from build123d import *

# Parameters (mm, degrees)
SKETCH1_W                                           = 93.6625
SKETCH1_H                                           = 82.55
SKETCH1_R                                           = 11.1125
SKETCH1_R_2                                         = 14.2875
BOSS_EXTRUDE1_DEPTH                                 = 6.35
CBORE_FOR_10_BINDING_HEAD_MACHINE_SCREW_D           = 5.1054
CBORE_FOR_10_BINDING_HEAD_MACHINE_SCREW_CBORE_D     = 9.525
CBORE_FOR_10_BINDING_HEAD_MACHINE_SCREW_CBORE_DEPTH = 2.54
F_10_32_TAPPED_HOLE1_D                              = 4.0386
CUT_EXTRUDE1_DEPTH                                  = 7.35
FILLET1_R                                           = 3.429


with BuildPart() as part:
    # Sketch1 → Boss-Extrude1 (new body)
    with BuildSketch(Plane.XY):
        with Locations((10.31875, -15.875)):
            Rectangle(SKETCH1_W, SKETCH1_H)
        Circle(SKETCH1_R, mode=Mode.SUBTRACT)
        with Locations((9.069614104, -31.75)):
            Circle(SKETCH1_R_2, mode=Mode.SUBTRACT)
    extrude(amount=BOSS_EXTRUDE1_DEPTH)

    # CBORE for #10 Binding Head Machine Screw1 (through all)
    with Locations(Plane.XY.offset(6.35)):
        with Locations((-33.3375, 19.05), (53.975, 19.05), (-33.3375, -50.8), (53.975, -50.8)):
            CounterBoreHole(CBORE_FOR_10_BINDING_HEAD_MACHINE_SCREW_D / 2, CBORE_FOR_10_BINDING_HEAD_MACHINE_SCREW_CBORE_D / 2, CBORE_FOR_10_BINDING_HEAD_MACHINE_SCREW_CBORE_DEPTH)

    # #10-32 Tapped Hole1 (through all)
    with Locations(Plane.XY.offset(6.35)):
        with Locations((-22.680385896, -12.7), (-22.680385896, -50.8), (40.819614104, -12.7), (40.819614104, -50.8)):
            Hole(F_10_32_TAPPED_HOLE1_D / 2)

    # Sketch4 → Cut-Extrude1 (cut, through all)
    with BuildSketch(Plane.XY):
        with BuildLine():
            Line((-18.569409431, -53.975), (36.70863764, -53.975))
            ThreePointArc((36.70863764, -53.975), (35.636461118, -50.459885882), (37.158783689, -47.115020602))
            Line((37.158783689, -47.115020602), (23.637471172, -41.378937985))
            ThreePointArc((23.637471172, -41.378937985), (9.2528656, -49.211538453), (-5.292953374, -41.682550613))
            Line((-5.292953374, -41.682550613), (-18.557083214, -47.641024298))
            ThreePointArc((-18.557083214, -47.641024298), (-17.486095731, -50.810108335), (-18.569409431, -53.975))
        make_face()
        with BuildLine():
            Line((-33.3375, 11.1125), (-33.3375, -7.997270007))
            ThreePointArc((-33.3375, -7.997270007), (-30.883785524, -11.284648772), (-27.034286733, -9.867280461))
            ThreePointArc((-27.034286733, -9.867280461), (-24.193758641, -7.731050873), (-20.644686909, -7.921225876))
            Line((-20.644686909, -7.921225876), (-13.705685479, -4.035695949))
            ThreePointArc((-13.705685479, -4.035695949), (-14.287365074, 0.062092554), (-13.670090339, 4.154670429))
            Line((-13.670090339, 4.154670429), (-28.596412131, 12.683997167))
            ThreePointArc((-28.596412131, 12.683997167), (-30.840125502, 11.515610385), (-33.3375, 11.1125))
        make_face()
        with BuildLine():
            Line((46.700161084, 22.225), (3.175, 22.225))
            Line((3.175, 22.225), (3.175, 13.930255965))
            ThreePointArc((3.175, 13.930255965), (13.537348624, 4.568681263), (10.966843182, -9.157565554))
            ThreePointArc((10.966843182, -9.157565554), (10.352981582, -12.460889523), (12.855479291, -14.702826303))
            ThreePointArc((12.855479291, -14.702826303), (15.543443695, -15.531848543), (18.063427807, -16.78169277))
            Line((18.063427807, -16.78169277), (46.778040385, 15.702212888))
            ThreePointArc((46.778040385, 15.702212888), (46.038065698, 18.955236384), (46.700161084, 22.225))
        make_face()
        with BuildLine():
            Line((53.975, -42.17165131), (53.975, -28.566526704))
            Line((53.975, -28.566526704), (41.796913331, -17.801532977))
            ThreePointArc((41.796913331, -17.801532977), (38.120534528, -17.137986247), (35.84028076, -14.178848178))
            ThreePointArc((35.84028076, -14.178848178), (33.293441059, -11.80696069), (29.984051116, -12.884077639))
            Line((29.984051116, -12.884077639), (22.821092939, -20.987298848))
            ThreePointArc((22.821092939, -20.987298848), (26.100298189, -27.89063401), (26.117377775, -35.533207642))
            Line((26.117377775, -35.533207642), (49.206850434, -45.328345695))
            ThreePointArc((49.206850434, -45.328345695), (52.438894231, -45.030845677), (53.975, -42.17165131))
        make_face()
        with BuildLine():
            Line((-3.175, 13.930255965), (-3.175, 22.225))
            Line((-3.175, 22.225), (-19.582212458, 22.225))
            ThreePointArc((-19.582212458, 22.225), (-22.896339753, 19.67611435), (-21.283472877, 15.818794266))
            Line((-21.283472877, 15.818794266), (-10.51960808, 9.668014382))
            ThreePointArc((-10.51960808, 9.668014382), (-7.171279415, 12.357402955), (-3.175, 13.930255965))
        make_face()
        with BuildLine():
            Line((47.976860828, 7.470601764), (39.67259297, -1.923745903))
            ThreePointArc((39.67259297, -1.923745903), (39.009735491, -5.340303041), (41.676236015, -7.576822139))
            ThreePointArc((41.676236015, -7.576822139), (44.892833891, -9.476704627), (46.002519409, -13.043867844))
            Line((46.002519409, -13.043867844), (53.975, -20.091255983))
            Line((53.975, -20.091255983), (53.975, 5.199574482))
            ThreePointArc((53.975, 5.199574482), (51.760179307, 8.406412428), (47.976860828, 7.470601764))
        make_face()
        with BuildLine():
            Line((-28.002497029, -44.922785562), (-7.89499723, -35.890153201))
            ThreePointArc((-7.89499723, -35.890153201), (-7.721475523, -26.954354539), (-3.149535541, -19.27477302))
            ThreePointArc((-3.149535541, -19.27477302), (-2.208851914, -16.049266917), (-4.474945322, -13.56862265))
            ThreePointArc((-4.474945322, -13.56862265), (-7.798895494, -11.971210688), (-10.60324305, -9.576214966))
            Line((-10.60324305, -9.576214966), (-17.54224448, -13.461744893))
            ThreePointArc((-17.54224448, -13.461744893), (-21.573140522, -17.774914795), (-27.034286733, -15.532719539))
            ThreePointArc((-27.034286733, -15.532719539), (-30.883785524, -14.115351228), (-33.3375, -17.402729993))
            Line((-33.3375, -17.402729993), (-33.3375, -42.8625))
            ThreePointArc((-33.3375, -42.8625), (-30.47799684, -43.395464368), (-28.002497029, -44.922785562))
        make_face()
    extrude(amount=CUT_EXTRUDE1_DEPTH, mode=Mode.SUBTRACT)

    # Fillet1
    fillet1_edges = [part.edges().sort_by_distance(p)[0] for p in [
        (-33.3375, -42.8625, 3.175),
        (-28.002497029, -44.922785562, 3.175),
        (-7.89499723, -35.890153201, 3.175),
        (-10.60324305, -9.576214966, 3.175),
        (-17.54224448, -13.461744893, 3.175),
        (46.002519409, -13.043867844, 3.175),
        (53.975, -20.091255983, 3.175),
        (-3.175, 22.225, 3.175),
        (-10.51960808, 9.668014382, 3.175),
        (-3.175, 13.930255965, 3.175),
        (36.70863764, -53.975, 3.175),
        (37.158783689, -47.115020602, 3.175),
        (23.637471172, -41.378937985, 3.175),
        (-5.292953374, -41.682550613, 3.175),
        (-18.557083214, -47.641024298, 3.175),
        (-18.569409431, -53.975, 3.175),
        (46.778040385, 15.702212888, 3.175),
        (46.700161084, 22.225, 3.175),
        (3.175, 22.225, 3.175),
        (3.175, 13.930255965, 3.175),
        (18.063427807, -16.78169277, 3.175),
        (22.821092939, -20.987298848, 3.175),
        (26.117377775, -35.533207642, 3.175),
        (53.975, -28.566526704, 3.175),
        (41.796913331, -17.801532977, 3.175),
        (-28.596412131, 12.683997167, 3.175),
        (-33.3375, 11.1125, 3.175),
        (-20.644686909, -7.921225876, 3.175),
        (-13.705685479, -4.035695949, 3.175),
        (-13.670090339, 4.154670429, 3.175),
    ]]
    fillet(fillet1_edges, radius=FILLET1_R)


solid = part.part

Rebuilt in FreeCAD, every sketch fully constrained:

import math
import FreeCAD as App
import Part
import Sketcher
from FreeCAD import Vector
Q = App.Units.Quantity


def edges_at(feature, points):
    """Names of the edges that pass closest to the given points."""
    edges = feature.Shape.Edges
    near = lambda p: min(range(len(edges)), key=lambda i: edges[i].distToShape(Part.Vertex(*p))[0])
    return sorted({f"Edge{near(p) + 1}" for p in points})


def add_polygon(sketch, points):
    """Adds a closed chain of lines whose ends are joined by coincident constraints."""
    first, n = sketch.GeometryCount, len(points)
    for a, b in zip(points, points[1:] + points[:1]):
        sketch.addGeometry(Part.LineSegment(App.Vector(*a, 0), App.Vector(*b, 0)), False)
    for i in range(n):
        sketch.addConstraint(Sketcher.Constraint("Coincident", first + i, 2, first + (i + 1) % n, 1))

doc = App.newDocument("Part")
params = doc.addObject("Spreadsheet::Sheet", "Params")
for row, (alias, value) in enumerate([
    ("sketch1_diameter", "1.125 in"),
    ("sketch1_diameter2", "0.875 in"),
    ("sketch1_height", "3.25 in"),
    ("sketch1_width", "3.6875 in"),
    ("pad1_length", "0.25 in"),
    ("sketch2_diameter", "0.201 in"),
    ("hole_diameter", "0.201 in"),
    ("hole_cbore_diameter", "0.375 in"),
    ("hole_cbore_depth", "0.1 in"),
    ("sketch3_diameter", "0.159 in"),
    ("hole2_diameter", "0.159 in"),
    ("sketch4_radius", "0.6875 in"),
    ("sketch4_radius2", "0.135 in"),
    ("sketch4_radius3", "0.5625 in"),
    ("sketch4_radius4", "0.3125 in"),
    ("fillet_radius", "0.135 in"),
], start=1):
    params.set(f"A{row}", alias)
    params.set(f"B{row}", "=" + value)
    params.setAlias(f"B{row}", alias)

body = doc.addObject("PartDesign::Body", "Body")

# Sketch on XY plane
sketch1 = body.newObject("Sketcher::SketchObject", "Sketch")
sketch1.AttachmentSupport = (doc.getObject("XY_Plane"), [""])
sketch1.MapMode = "FlatFace"
add_polygon(sketch1, [(-37, 25), (-37, -57), (57, -57), (57, 25)])  # lines 0-3
sketch1.addGeometry(Part.Circle(Vector(9, -32, 0), Vector(0, 0, 1), 14), False)  # 4
sketch1.addGeometry(Part.Circle(Vector(0, 0, 0), Vector(0, 0, 1), 11), False)  # 5
sketch1.addConstraint(Sketcher.Constraint("Vertical", 0))
sketch1.addConstraint(Sketcher.Constraint("Horizontal", 1))
sketch1.addConstraint(Sketcher.Constraint("Vertical", 2))
sketch1.addConstraint(Sketcher.Constraint("Horizontal", 3))
sketch1.addConstraint(Sketcher.Constraint("Coincident", 5, 3, -1, 1))
sketch1.addConstraint(Sketcher.Constraint("Diameter", 4, Q("1.125 in")))
sketch1.addConstraint(Sketcher.Constraint("Diameter", 5, Q("0.875 in")))
sketch1.addConstraint(Sketcher.Constraint("DistanceY", -1, 1, 2, 2, Q("1 in")))
sketch1.addConstraint(Sketcher.Constraint("DistanceY", 0, 2, 4, 3, Q("1 in")))
sketch1.addConstraint(Sketcher.Constraint("DistanceY", 0, 2, 0, 1, Q("3.25 in")))
sketch1.addConstraint(Sketcher.Constraint("DistanceX", 1, 1, 1, 2, Q("3.6875 in")))
sketch1.addConstraint(Sketcher.Constraint("DistanceX", -1, 1, 1, 2, Q("2.25 in")))
sketch1.addConstraint(Sketcher.Constraint("DistanceX", -1, 1, 4, 3, Q("9.069614 mm")))
sketch1.setExpression("Constraints[9]", "Params.sketch1_diameter")
sketch1.setExpression("Constraints[10]", "Params.sketch1_diameter2")
sketch1.setExpression("Constraints[13]", "Params.sketch1_height")
sketch1.setExpression("Constraints[14]", "Params.sketch1_width")
pad1 = body.newObject("PartDesign::Pad", "Pad")
pad1.Profile = sketch1
pad1.setExpression("Length", "Params.pad1_length")

# Sketch on XY plane
sketch2 = body.newObject("Sketcher::SketchObject", "Sketch001")
sketch2.AttachmentSupport = (doc.getObject("XY_Plane"), [""])
sketch2.MapMode = "FlatFace"
sketch2.AttachmentOffset = App.Placement(Vector(0, 0, 0.25 * 25.4), App.Rotation())
sketch2.addGeometry(Part.Circle(Vector(-33.3, 19.1, 0), Vector(0, 0, 1), 2.6), False)
sketch2.addGeometry(Part.Circle(Vector(54, 19.1, 0), Vector(0, 0, 1), 2.6), False)
sketch2.addGeometry(Part.Circle(Vector(-33.3, -50.8, 0), Vector(0, 0, 1), 2.6), False)
sketch2.addGeometry(Part.Circle(Vector(54, -50.8, 0), Vector(0, 0, 1), 2.6), False)
sketch2.addConstraint(Sketcher.Constraint("Equal", 0, 1))
sketch2.addConstraint(Sketcher.Constraint("Equal", 1, 2))
sketch2.addConstraint(Sketcher.Constraint("Equal", 2, 3))
sketch2.addConstraint(Sketcher.Constraint("Horizontal", 0, 3, 1, 3))
sketch2.addConstraint(Sketcher.Constraint("Horizontal", 2, 3, 3, 3))
sketch2.addConstraint(Sketcher.Constraint("Vertical", 0, 3, 2, 3))
sketch2.addConstraint(Sketcher.Constraint("Vertical", 1, 3, 3, 3))
sketch2.addConstraint(Sketcher.Constraint("Diameter", 0, Q("0.201 in")))
sketch2.addConstraint(Sketcher.Constraint("DistanceY", 2, 3, -1, 1, Q("2 in")))
sketch2.addConstraint(Sketcher.Constraint("DistanceY", -1, 1, 0, 3, Q("0.75 in")))
sketch2.addConstraint(Sketcher.Constraint("DistanceX", 0, 3, -1, 1, Q("1.3125 in")))
sketch2.addConstraint(Sketcher.Constraint("DistanceX", -1, 1, 1, 3, Q("2.125 in")))
sketch2.setExpression("Constraints[7]", "Params.sketch2_diameter")
doc.recompute()
hole = body.newObject("PartDesign::Hole", "Hole")
hole.Profile = sketch2
hole.ThreadType = "None"
hole.setExpression("Diameter", "Params.hole_diameter")
hole.DepthType = "ThroughAll"
hole.HoleCutType = "Counterbore"
hole.setExpression("HoleCutDiameter", "Params.hole_cbore_diameter")
hole.setExpression("HoleCutDepth", "Params.hole_cbore_depth")

# Sketch on XY plane
sketch3 = body.newObject("Sketcher::SketchObject", "Sketch002")
sketch3.AttachmentSupport = (doc.getObject("XY_Plane"), [""])
sketch3.MapMode = "FlatFace"
sketch3.AttachmentOffset = App.Placement(Vector(0, 0, 0.25 * 25.4), App.Rotation())
sketch3.addGeometry(Part.Circle(Vector(-22.7, -12.7, 0), Vector(0, 0, 1), 2), False)
sketch3.addGeometry(Part.Circle(Vector(-22.7, -50.8, 0), Vector(0, 0, 1), 2), False)
sketch3.addGeometry(Part.Circle(Vector(40.8, -12.7, 0), Vector(0, 0, 1), 2), False)
sketch3.addGeometry(Part.Circle(Vector(40.8, -50.8, 0), Vector(0, 0, 1), 2), False)
sketch3.addConstraint(Sketcher.Constraint("Equal", 0, 1))
sketch3.addConstraint(Sketcher.Constraint("Equal", 1, 2))
sketch3.addConstraint(Sketcher.Constraint("Equal", 2, 3))
sketch3.addConstraint(Sketcher.Constraint("Horizontal", 0, 3, 2, 3))
sketch3.addConstraint(Sketcher.Constraint("Horizontal", 1, 3, 3, 3))
sketch3.addConstraint(Sketcher.Constraint("Vertical", 0, 3, 1, 3))
sketch3.addConstraint(Sketcher.Constraint("Vertical", 2, 3, 3, 3))
sketch3.addConstraint(Sketcher.Constraint("Diameter", 0, Q("0.159 in")))
sketch3.addConstraint(Sketcher.Constraint("DistanceY", 1, 3, -1, 1, Q("2 in")))
sketch3.addConstraint(Sketcher.Constraint("DistanceY", 0, 3, -1, 1, Q("0.5 in")))
sketch3.addConstraint(Sketcher.Constraint("DistanceX", 0, 3, 2, 3, Q("2.5 in")))
sketch3.addConstraint(Sketcher.Constraint("DistanceX", 0, 3, -1, 1, Q("22.680386 mm")))
sketch3.setExpression("Constraints[7]", "Params.sketch3_diameter")
doc.recompute()
hole2 = body.newObject("PartDesign::Hole", "Hole001")
hole2.Profile = sketch3
hole2.ThreadType = "None"
hole2.setExpression("Diameter", "Params.hole2_diameter")
hole2.DepthType = "ThroughAll"

# Sketch on XY plane
sketch4 = body.newObject("Sketcher::SketchObject", "Sketch003")
sketch4.AttachmentSupport = (doc.getObject("XY_Plane"), [""])
sketch4.MapMode = "FlatFace"
sketch4.addGeometry(Part.LineSegment(Vector(-18.6, -54, 0), Vector(36.7, -54, 0)), False)
sketch4.addGeometry(Part.ArcOfCircle(Part.Circle(Vector(40.8, -50.8, 0), Vector(0, 0, 1), 5.2), math.radians(135), math.radians(218)), False)
sketch4.addGeometry(Part.LineSegment(Vector(37.2, -47.1, 0), Vector(23.6, -41.4, 0)), False)
sketch4.addGeometry(Part.ArcOfCircle(Part.Circle(Vector(9.1, -31.8, 0), Vector(0, 0, 1), 17.5), math.radians(-145), math.radians(-33)), False)
sketch4.addGeometry(Part.LineSegment(Vector(-5.3, -41.7, 0), Vector(-18.6, -47.6, 0)), False)
sketch4.addGeometry(Part.ArcOfCircle(Part.Circle(Vector(-22.7, -50.8, 0), Vector(0, 0, 1), 5.2), math.radians(-38), math.radians(37)), False)
sketch4.addGeometry(Part.LineSegment(Vector(-33.3, 11.1, 0), Vector(-33.3, -8, 0)), False)
sketch4.addGeometry(Part.ArcOfCircle(Part.Circle(Vector(-29.9, -8, 0), Vector(0, 0, 1), 3.4), math.radians(-180), math.radians(-33)), False)
sketch4.addGeometry(Part.ArcOfCircle(Part.Circle(Vector(-22.7, -12.7, 0), Vector(0, 0, 1), 5.2), math.radians(67), math.radians(147)), False)
sketch4.addGeometry(Part.LineSegment(Vector(-20.6, -7.9, 0), Vector(-13.7, -4, 0)), False)
sketch4.addGeometry(Part.ArcOfCircle(Part.Circle(Vector(0, 0, 0), Vector(0, 0, 1), 14.3), math.radians(163), math.radians(196)), False)
sketch4.addGeometry(Part.LineSegment(Vector(-13.7, 4.2, 0), Vector(-28.6, 12.7, 0)), False)
sketch4.addGeometry(Part.ArcOfCircle(Part.Circle(Vector(-33.3, 19, 0), Vector(0, 0, 1), 7.9), math.radians(-90), math.radians(-53)), False)
sketch4.addGeometry(Part.LineSegment(Vector(46.7, 22.2, 0), Vector(3.2, 22.2, 0)), False)
sketch4.addGeometry(Part.LineSegment(Vector(3.2, 22.2, 0), Vector(3.2, 13.9, 0)), False)
sketch4.addGeometry(Part.ArcOfCircle(Part.Circle(Vector(0, 0, 0), Vector(0, 0, 1), 14.3), math.radians(-40), math.radians(77)), False)
sketch4.addGeometry(Part.ArcOfCircle(Part.Circle(Vector(13.6, -11.4, 0), Vector(0, 0, 1), 3.4), math.radians(140), math.radians(257)), False)
sketch4.addGeometry(Part.ArcOfCircle(Part.Circle(Vector(9.1, -31.8, 0), Vector(0, 0, 1), 17.5), math.radians(59), math.radians(77.48)), False)
sketch4.addGeometry(Part.LineSegment(Vector(18.1, -16.8, 0), Vector(46.8, 15.7, 0)), False)
sketch4.addGeometry(Part.ArcOfCircle(Part.Circle(Vector(54, 19.1, 0), Vector(0, 0, 1), 7.9), math.radians(156), math.radians(205)), False)
sketch4.addGeometry(Part.LineSegment(Vector(54, -42.2, 0), Vector(54, -28.6, 0)), False)
sketch4.addGeometry(Part.LineSegment(Vector(54, -28.6, 0), Vector(41.8, -17.8, 0)), False)
sketch4.addGeometry(Part.ArcOfCircle(Part.Circle(Vector(40.8, -12.7, 0), Vector(0, 0, 1), 5.2), math.radians(-163), math.radians(-79)), False)
sketch4.addGeometry(Part.ArcOfCircle(Part.Circle(Vector(32.6, -15.2, 0), Vector(0, 0, 1), 3.4), math.radians(17), math.radians(139)), False)
sketch4.addGeometry(Part.LineSegment(Vector(30, -12.9, 0), Vector(22.8, -21, 0)), False)
sketch4.addGeometry(Part.ArcOfCircle(Part.Circle(Vector(9.1, -31.8, 0), Vector(0, 0, 1), 17.5), math.radians(-13), math.radians(38)), False)
sketch4.addGeometry(Part.LineSegment(Vector(26.1, -35.5, 0), Vector(49.2, -45.3, 0)), False)
sketch4.addGeometry(Part.ArcOfCircle(Part.Circle(Vector(50.5, -42.2, 0), Vector(0, 0, 1), 3.4), math.radians(-113), math.radians(0)), False)
sketch4.addGeometry(Part.LineSegment(Vector(-3.2, 13.9, 0), Vector(-3.2, 22.2, 0)), False)
sketch4.addGeometry(Part.LineSegment(Vector(-3.2, 22.2, 0), Vector(-19.6, 22.2, 0)), False)
sketch4.addGeometry(Part.ArcOfCircle(Part.Circle(Vector(-19.6, 18.8, 0), Vector(0, 0, 1), 3.4), math.radians(90), math.radians(240)), False)
sketch4.addGeometry(Part.LineSegment(Vector(-21.3, 15.8, 0), Vector(-10.5, 9.7, 0)), False)
sketch4.addGeometry(Part.ArcOfCircle(Part.Circle(Vector(0, 0, 0), Vector(0, 0, 1), 14.3), math.radians(103), math.radians(137)), False)
sketch4.addGeometry(Part.LineSegment(Vector(48, 7.5, 0), Vector(39.7, -1.9, 0)), False)
sketch4.addGeometry(Part.ArcOfCircle(Part.Circle(Vector(42.2, -4.2, 0), Vector(0, 0, 1), 3.4), math.radians(139), math.radians(261)), False)
sketch4.addGeometry(Part.ArcOfCircle(Part.Circle(Vector(40.8, -12.7, 0), Vector(0, 0, 1), 5.2), math.radians(-4), math.radians(81)), False)
sketch4.addGeometry(Part.LineSegment(Vector(46, -13, 0), Vector(54, -20.1, 0)), False)
sketch4.addGeometry(Part.LineSegment(Vector(54, -20.1, 0), Vector(54, 5.2, 0)), False)
sketch4.addGeometry(Part.ArcOfCircle(Part.Circle(Vector(50.5, 5.2, 0), Vector(0, 0, 1), 3.4), math.radians(0), math.radians(139)), False)
sketch4.addGeometry(Part.LineSegment(Vector(-28, -44.9, 0), Vector(-7.9, -35.9, 0)), False)
sketch4.addGeometry(Part.ArcOfCircle(Part.Circle(Vector(9.1, -31.8, 0), Vector(0, 0, 1), 17.5), math.radians(134), math.radians(194)), False)
sketch4.addGeometry(Part.ArcOfCircle(Part.Circle(Vector(-5.5, -16.8, 0), Vector(0, 0, 1), 3.4), math.radians(-46), math.radians(72)), False)
sketch4.addGeometry(Part.ArcOfCircle(Part.Circle(Vector(0, 0, 0), Vector(0, 0, 1), 14.3), math.radians(-138), math.radians(-108)), False)
sketch4.addGeometry(Part.LineSegment(Vector(-10.6, -9.6, 0), Vector(-17.5, -13.5, 0)), False)
sketch4.addGeometry(Part.ArcOfCircle(Part.Circle(Vector(-22.7, -12.7, 0), Vector(0, 0, 1), 5.2), math.radians(-147), math.radians(-8)), False)
sketch4.addGeometry(Part.ArcOfCircle(Part.Circle(Vector(-29.9, -17.4, 0), Vector(0, 0, 1), 3.4), math.radians(33), math.radians(180)), False)
sketch4.addGeometry(Part.LineSegment(Vector(-33.3, -17.4, 0), Vector(-33.3, -42.9, 0)), False)
sketch4.addGeometry(Part.ArcOfCircle(Part.Circle(Vector(-33.3, -50.8, 0), Vector(0, 0, 1), 7.9), math.radians(48), math.radians(90)), False)
sketch4.addConstraint(Sketcher.Constraint("Coincident", 0, 2, 1, 2))
sketch4.addConstraint(Sketcher.Constraint("Coincident", 1, 1, 2, 1))
sketch4.addConstraint(Sketcher.Constraint("Coincident", 2, 2, 3, 2))
sketch4.addConstraint(Sketcher.Constraint("Coincident", 3, 1, 4, 1))
sketch4.addConstraint(Sketcher.Constraint("Coincident", 4, 2, 5, 2))
sketch4.addConstraint(Sketcher.Constraint("Coincident", 5, 1, 0, 1))
sketch4.addConstraint(Sketcher.Constraint("Tangent", 6, 2, 7, 1))
sketch4.addConstraint(Sketcher.Constraint("Tangent", 7, 2, 8, 2))
sketch4.addConstraint(Sketcher.Constraint("Coincident", 8, 1, 9, 1))
sketch4.addConstraint(Sketcher.Constraint("Coincident", 9, 2, 10, 2))
sketch4.addConstraint(Sketcher.Constraint("Coincident", 10, 1, 11, 1))
sketch4.addConstraint(Sketcher.Constraint("Coincident", 11, 2, 12, 2))
sketch4.addConstraint(Sketcher.Constraint("Coincident", 12, 1, 6, 1))
sketch4.addConstraint(Sketcher.Constraint("Coincident", 13, 2, 14, 1))
sketch4.addConstraint(Sketcher.Constraint("Coincident", 14, 2, 15, 2))
sketch4.addConstraint(Sketcher.Constraint("Tangent", 15, 1, 16, 1))
sketch4.addConstraint(Sketcher.Constraint("Tangent", 16, 2, 17, 2))
sketch4.addConstraint(Sketcher.Constraint("Coincident", 17, 1, 18, 1))
sketch4.addConstraint(Sketcher.Constraint("Coincident", 18, 2, 19, 2))
sketch4.addConstraint(Sketcher.Constraint("Coincident", 19, 1, 13, 1))
sketch4.addConstraint(Sketcher.Constraint("Coincident", 20, 2, 21, 1))
sketch4.addConstraint(Sketcher.Constraint("Coincident", 21, 2, 22, 2))
sketch4.addConstraint(Sketcher.Constraint("Tangent", 22, 1, 23, 1))
sketch4.addConstraint(Sketcher.Constraint("Tangent", 23, 2, 24, 1))
sketch4.addConstraint(Sketcher.Constraint("Coincident", 24, 2, 25, 2))
sketch4.addConstraint(Sketcher.Constraint("Coincident", 25, 1, 26, 1))
sketch4.addConstraint(Sketcher.Constraint("Tangent", 26, 2, 27, 1))
sketch4.addConstraint(Sketcher.Constraint("Tangent", 27, 2, 20, 1))
sketch4.addConstraint(Sketcher.Constraint("Coincident", 28, 2, 29, 1))
sketch4.addConstraint(Sketcher.Constraint("Tangent", 29, 2, 30, 1))
sketch4.addConstraint(Sketcher.Constraint("Tangent", 30, 2, 31, 1))
sketch4.addConstraint(Sketcher.Constraint("Coincident", 31, 2, 32, 2))
sketch4.addConstraint(Sketcher.Constraint("Coincident", 32, 1, 28, 1))
sketch4.addConstraint(Sketcher.Constraint("Tangent", 33, 2, 34, 1))
sketch4.addConstraint(Sketcher.Constraint("Tangent", 34, 2, 35, 2))
sketch4.addConstraint(Sketcher.Constraint("Coincident", 35, 1, 36, 1))
sketch4.addConstraint(Sketcher.Constraint("Coincident", 36, 2, 37, 1))
sketch4.addConstraint(Sketcher.Constraint("Tangent", 37, 2, 38, 1))
sketch4.addConstraint(Sketcher.Constraint("Tangent", 38, 2, 33, 1))
sketch4.addConstraint(Sketcher.Constraint("Coincident", 39, 2, 40, 2))
sketch4.addConstraint(Sketcher.Constraint("Tangent", 40, 1, 41, 1))
sketch4.addConstraint(Sketcher.Constraint("Tangent", 41, 2, 42, 2))
sketch4.addConstraint(Sketcher.Constraint("Coincident", 42, 1, 43, 1))
sketch4.addConstraint(Sketcher.Constraint("Coincident", 43, 2, 44, 2))
sketch4.addConstraint(Sketcher.Constraint("Tangent", 44, 1, 45, 1))
sketch4.addConstraint(Sketcher.Constraint("Tangent", 45, 2, 46, 1))
sketch4.addConstraint(Sketcher.Constraint("Coincident", 46, 2, 47, 2))
sketch4.addConstraint(Sketcher.Constraint("Coincident", 47, 1, 39, 1))
sketch4.addConstraint(Sketcher.Constraint("Horizontal", 0))
sketch4.addConstraint(Sketcher.Constraint("Vertical", 6))
sketch4.addConstraint(Sketcher.Constraint("Horizontal", 13))
sketch4.addConstraint(Sketcher.Constraint("Vertical", 14))
sketch4.addConstraint(Sketcher.Constraint("Vertical", 20))
sketch4.addConstraint(Sketcher.Constraint("Vertical", 28))
sketch4.addConstraint(Sketcher.Constraint("Horizontal", 29))
sketch4.addConstraint(Sketcher.Constraint("Vertical", 37))
sketch4.addConstraint(Sketcher.Constraint("Vertical", 46))
sketch4.addConstraint(Sketcher.Constraint("Coincident", 10, 3, -1, 1))
sketch4.addConstraint(Sketcher.Constraint("Coincident", 15, 3, -1, 1))
sketch4.addConstraint(Sketcher.Constraint("Coincident", 32, 3, -1, 1))
sketch4.addConstraint(Sketcher.Constraint("Coincident", 42, 3, -1, 1))
sketch4.addConstraint(Sketcher.Constraint("Coincident", 17, 3, 3, 3))
sketch4.addConstraint(Sketcher.Constraint("Coincident", 25, 3, 3, 3))
sketch4.addConstraint(Sketcher.Constraint("Coincident", 35, 3, 22, 3))
sketch4.addConstraint(Sketcher.Constraint("Coincident", 40, 3, 3, 3))
sketch4.addConstraint(Sketcher.Constraint("Coincident", 44, 3, 8, 3))
sketch4.addConstraint(Sketcher.Constraint("Equal", 1, 5))
sketch4.addConstraint(Sketcher.Constraint("Equal", 5, 8))
sketch4.addConstraint(Sketcher.Constraint("Equal", 10, 15))
sketch4.addConstraint(Sketcher.Constraint("Equal", 7, 16))
sketch4.addConstraint(Sketcher.Constraint("Equal", 3, 17))
sketch4.addConstraint(Sketcher.Constraint("Equal", 12, 19))
sketch4.addConstraint(Sketcher.Constraint("Equal", 8, 22))
sketch4.addConstraint(Sketcher.Constraint("Equal", 16, 23))
sketch4.addConstraint(Sketcher.Constraint("Equal", 17, 25))
sketch4.addConstraint(Sketcher.Constraint("Equal", 23, 27))
sketch4.addConstraint(Sketcher.Constraint("Equal", 27, 30))
sketch4.addConstraint(Sketcher.Constraint("Equal", 15, 32))
sketch4.addConstraint(Sketcher.Constraint("Equal", 30, 34))
sketch4.addConstraint(Sketcher.Constraint("Equal", 22, 35))
sketch4.addConstraint(Sketcher.Constraint("Equal", 34, 38))
sketch4.addConstraint(Sketcher.Constraint("Equal", 25, 40))
sketch4.addConstraint(Sketcher.Constraint("Equal", 38, 41))
sketch4.addConstraint(Sketcher.Constraint("Equal", 32, 42))
sketch4.addConstraint(Sketcher.Constraint("Equal", 35, 44))
sketch4.addConstraint(Sketcher.Constraint("Equal", 41, 45))
sketch4.addConstraint(Sketcher.Constraint("Equal", 19, 47))
sketch4.addConstraint(Sketcher.Constraint("Symmetric", 13, 2, 28, 2, -2))
sketch4.addConstraint(Sketcher.Constraint("Perpendicular", 18, 21))
sketch4.addConstraint(Sketcher.Constraint("Perpendicular", 21, 24))
sketch4.addConstraint(Sketcher.Constraint("Parallel", 2, 26))
sketch4.addConstraint(Sketcher.Constraint("Parallel", 11, 31))
sketch4.addConstraint(Sketcher.Constraint("Parallel", 24, 33))
sketch4.addConstraint(Sketcher.Constraint("Perpendicular", 33, 36))
sketch4.addConstraint(Sketcher.Constraint("Parallel", 4, 39))
sketch4.addConstraint(Sketcher.Constraint("Parallel", 9, 43))
sketch4.addConstraint(Sketcher.Constraint("Horizontal", 1, 3, 5, 3))
sketch4.addConstraint(Sketcher.Constraint("Horizontal", 12, 3, 19, 3))
sketch4.addConstraint(Sketcher.Constraint("Horizontal", 8, 3, 22, 3))
sketch4.addConstraint(Sketcher.Constraint("Horizontal", 5, 3, 47, 3))
sketch4.addConstraint(Sketcher.Constraint("Vertical", 5, 3, 8, 3))
sketch4.addConstraint(Sketcher.Constraint("Vertical", 1, 3, 22, 3))
sketch4.addConstraint(Sketcher.Constraint("Vertical", 27, 3, 38, 3))
sketch4.addConstraint(Sketcher.Constraint("Vertical", 7, 3, 45, 3))
sketch4.addConstraint(Sketcher.Constraint("Vertical", 12, 3, 47, 3))
sketch4.addConstraint(Sketcher.Constraint("Vertical", 47, 3, 6, 2))
sketch4.addConstraint(Sketcher.Constraint("Vertical", 19, 3, 20, 2))
sketch4.addConstraint(Sketcher.Constraint("Equal", 9, 43))
sketch4.addConstraint(Sketcher.Constraint("DistanceY", 1, 3, -1, 1, Q("2 in")))
sketch4.addConstraint(Sketcher.Constraint("Radius", 3, Q("0.6875 in")))
sketch4.addConstraint(Sketcher.Constraint("Radius", 7, Q("0.135 in")))
sketch4.addConstraint(Sketcher.Constraint("Radius", 10, Q("0.5625 in")))
sketch4.addConstraint(Sketcher.Constraint("Radius", 12, Q("0.3125 in")))
sketch4.addConstraint(Sketcher.Constraint("DistanceY", 8, 3, -1, 1, Q("0.5 in")))
sketch4.addConstraint(Sketcher.Constraint("Radius", 1, Q("0.2045 in")))
sketch4.addConstraint(Sketcher.Constraint("DistanceY", 3, 3, -1, 1, Q("1.25 in")))
sketch4.addConstraint(Sketcher.Constraint("DistanceY", -1, 1, 12, 3, Q("0.75 in")))
sketch4.addConstraint(Sketcher.Constraint("DistanceX", -1, 1, 27, 3, Q("1.99 in")))
sketch4.addConstraint(Sketcher.Constraint("DistanceY", -1, 1, 30, 3, Q("0.74 in")))
sketch4.addConstraint(Sketcher.Constraint("DistanceX", 12, 3, -1, 1, Q("1.3125 in")))
sketch4.addConstraint(Sketcher.Constraint("DistanceY", 0, 2, -1, 1, Q("2.125 in")))
sketch4.addConstraint(Sketcher.Constraint("DistanceX", -1, 1, 13, 2, Q("0.125 in")))
sketch4.addConstraint(Sketcher.Constraint("DistanceY", 34, 2, -1, 1, Q("0.2983001 in")))
sketch4.addConstraint(Sketcher.Constraint("Distance", 2, Q("14.6877 mm")))
sketch4.addConstraint(Sketcher.Constraint("DistanceY", 6, 2, 6, 1, Q("19.10977 mm")))
sketch4.addConstraint(Sketcher.Constraint("DistanceY", 37, 1, 37, 2, Q("25.29083 mm")))
sketch4.addConstraint(Sketcher.Constraint("DistanceY", 24, 2, -1, 1, Q("20.987299 mm")))
sketch4.addConstraint(Sketcher.Constraint("DistanceY", -1, 1, 38, 2, Q("7.470602 mm")))
sketch4.addConstraint(Sketcher.Constraint("Distance", 18, Q("43.355889 mm")))
sketch4.addConstraint(Sketcher.Constraint("Distance", 21, Q("16.25395 mm")))
sketch4.addConstraint(Sketcher.Constraint("Distance", 39, Q("22.043139 mm")))
sketch4.addConstraint(Sketcher.Constraint("DistanceX", 0, 1, 0, 2, Q("55.278047 mm")))
sketch4.addConstraint(Sketcher.Constraint("DistanceX", 29, 2, 29, 1, Q("16.407212 mm")))
sketch4.addConstraint(Sketcher.Constraint("DistanceY", 20, 1, 20, 2, Q("13.605125 mm")))
sketch4.addConstraint(Sketcher.Constraint("DistanceY", 16, 3, -1, 1, Q("11.355381 mm")))
sketch4.addConstraint(Sketcher.Constraint("DistanceY", 1, 1, -1, 1, Q("47.115021 mm")))
sketch4.addConstraint(Sketcher.Constraint("DistanceY", 3, 1, -1, 1, Q("41.682551 mm")))
sketch4.addConstraint(Sketcher.Constraint("DistanceX", 10, 1, -1, 1, Q("13.67009 mm")))
sketch4.addConstraint(Sketcher.Constraint("DistanceX", 31, 2, -1, 1, Q("10.519608 mm")))
sketch4.addConstraint(Sketcher.Constraint("Distance", 4, Q("14.540995 mm")))
sketch4.addConstraint(Sketcher.Constraint("Distance", 9, Q("7.952804 mm")))
sketch4.addConstraint(Sketcher.Constraint("DistanceX", 8, 1, -1, 1, Q("20.644687 mm")))
sketch4.setExpression("Constraints[109]", "Params.sketch4_radius")
sketch4.setExpression("Constraints[110]", "Params.sketch4_radius2")
sketch4.setExpression("Constraints[111]", "Params.sketch4_radius3")
sketch4.setExpression("Constraints[112]", "Params.sketch4_radius4")
pocket1 = body.newObject("PartDesign::Pocket", "Pocket")
pocket1.Profile = sketch4
pocket1.Type = "ThroughAll"
pocket1.Reversed = True
doc.recompute()

fillet = body.newObject("PartDesign::Fillet", "Fillet")
fillet.Base = (pocket1, edges_at(pocket1, [
    (-33.337, -42.862, 3.175),
    (-28.002, -44.923, 3.175),
    (-7.895, -35.89, 3.175),
    (-10.603, -9.576, 3.175),
    (-17.542, -13.462, 3.175),
    (46.003, -13.044, 3.175),
    (53.975, -20.091, 3.175),
    (-3.175, 22.225, 3.175),
    (-10.52, 9.668, 3.175),
    (-3.175, 13.93, 3.175),
    (36.709, -53.975, 3.175),
    (37.159, -47.115, 3.175),
    (23.637, -41.379, 3.175),
    (-5.293, -41.683, 3.175),
    (-18.557, -47.641, 3.175),
    (-18.569, -53.975, 3.175),
    (46.778, 15.702, 3.175),
    (46.7, 22.225, 3.175),
    (3.175, 22.225, 3.175),
    (3.175, 13.93, 3.175),
    (18.063, -16.782, 3.175),
    (22.821, -20.987, 3.175),
    (26.117, -35.533, 3.175),
    (53.975, -28.567, 3.175),
    (41.797, -17.802, 3.175),
    (-28.596, 12.684, 3.175),
    (-33.337, 11.113, 3.175),
    (-20.645, -7.921, 3.175),
    (-13.706, -4.036, 3.175),
    (-13.67, 4.155, 3.175),
]))
fillet.setExpression("Radius", "Params.fillet_radius")

doc.recompute()
